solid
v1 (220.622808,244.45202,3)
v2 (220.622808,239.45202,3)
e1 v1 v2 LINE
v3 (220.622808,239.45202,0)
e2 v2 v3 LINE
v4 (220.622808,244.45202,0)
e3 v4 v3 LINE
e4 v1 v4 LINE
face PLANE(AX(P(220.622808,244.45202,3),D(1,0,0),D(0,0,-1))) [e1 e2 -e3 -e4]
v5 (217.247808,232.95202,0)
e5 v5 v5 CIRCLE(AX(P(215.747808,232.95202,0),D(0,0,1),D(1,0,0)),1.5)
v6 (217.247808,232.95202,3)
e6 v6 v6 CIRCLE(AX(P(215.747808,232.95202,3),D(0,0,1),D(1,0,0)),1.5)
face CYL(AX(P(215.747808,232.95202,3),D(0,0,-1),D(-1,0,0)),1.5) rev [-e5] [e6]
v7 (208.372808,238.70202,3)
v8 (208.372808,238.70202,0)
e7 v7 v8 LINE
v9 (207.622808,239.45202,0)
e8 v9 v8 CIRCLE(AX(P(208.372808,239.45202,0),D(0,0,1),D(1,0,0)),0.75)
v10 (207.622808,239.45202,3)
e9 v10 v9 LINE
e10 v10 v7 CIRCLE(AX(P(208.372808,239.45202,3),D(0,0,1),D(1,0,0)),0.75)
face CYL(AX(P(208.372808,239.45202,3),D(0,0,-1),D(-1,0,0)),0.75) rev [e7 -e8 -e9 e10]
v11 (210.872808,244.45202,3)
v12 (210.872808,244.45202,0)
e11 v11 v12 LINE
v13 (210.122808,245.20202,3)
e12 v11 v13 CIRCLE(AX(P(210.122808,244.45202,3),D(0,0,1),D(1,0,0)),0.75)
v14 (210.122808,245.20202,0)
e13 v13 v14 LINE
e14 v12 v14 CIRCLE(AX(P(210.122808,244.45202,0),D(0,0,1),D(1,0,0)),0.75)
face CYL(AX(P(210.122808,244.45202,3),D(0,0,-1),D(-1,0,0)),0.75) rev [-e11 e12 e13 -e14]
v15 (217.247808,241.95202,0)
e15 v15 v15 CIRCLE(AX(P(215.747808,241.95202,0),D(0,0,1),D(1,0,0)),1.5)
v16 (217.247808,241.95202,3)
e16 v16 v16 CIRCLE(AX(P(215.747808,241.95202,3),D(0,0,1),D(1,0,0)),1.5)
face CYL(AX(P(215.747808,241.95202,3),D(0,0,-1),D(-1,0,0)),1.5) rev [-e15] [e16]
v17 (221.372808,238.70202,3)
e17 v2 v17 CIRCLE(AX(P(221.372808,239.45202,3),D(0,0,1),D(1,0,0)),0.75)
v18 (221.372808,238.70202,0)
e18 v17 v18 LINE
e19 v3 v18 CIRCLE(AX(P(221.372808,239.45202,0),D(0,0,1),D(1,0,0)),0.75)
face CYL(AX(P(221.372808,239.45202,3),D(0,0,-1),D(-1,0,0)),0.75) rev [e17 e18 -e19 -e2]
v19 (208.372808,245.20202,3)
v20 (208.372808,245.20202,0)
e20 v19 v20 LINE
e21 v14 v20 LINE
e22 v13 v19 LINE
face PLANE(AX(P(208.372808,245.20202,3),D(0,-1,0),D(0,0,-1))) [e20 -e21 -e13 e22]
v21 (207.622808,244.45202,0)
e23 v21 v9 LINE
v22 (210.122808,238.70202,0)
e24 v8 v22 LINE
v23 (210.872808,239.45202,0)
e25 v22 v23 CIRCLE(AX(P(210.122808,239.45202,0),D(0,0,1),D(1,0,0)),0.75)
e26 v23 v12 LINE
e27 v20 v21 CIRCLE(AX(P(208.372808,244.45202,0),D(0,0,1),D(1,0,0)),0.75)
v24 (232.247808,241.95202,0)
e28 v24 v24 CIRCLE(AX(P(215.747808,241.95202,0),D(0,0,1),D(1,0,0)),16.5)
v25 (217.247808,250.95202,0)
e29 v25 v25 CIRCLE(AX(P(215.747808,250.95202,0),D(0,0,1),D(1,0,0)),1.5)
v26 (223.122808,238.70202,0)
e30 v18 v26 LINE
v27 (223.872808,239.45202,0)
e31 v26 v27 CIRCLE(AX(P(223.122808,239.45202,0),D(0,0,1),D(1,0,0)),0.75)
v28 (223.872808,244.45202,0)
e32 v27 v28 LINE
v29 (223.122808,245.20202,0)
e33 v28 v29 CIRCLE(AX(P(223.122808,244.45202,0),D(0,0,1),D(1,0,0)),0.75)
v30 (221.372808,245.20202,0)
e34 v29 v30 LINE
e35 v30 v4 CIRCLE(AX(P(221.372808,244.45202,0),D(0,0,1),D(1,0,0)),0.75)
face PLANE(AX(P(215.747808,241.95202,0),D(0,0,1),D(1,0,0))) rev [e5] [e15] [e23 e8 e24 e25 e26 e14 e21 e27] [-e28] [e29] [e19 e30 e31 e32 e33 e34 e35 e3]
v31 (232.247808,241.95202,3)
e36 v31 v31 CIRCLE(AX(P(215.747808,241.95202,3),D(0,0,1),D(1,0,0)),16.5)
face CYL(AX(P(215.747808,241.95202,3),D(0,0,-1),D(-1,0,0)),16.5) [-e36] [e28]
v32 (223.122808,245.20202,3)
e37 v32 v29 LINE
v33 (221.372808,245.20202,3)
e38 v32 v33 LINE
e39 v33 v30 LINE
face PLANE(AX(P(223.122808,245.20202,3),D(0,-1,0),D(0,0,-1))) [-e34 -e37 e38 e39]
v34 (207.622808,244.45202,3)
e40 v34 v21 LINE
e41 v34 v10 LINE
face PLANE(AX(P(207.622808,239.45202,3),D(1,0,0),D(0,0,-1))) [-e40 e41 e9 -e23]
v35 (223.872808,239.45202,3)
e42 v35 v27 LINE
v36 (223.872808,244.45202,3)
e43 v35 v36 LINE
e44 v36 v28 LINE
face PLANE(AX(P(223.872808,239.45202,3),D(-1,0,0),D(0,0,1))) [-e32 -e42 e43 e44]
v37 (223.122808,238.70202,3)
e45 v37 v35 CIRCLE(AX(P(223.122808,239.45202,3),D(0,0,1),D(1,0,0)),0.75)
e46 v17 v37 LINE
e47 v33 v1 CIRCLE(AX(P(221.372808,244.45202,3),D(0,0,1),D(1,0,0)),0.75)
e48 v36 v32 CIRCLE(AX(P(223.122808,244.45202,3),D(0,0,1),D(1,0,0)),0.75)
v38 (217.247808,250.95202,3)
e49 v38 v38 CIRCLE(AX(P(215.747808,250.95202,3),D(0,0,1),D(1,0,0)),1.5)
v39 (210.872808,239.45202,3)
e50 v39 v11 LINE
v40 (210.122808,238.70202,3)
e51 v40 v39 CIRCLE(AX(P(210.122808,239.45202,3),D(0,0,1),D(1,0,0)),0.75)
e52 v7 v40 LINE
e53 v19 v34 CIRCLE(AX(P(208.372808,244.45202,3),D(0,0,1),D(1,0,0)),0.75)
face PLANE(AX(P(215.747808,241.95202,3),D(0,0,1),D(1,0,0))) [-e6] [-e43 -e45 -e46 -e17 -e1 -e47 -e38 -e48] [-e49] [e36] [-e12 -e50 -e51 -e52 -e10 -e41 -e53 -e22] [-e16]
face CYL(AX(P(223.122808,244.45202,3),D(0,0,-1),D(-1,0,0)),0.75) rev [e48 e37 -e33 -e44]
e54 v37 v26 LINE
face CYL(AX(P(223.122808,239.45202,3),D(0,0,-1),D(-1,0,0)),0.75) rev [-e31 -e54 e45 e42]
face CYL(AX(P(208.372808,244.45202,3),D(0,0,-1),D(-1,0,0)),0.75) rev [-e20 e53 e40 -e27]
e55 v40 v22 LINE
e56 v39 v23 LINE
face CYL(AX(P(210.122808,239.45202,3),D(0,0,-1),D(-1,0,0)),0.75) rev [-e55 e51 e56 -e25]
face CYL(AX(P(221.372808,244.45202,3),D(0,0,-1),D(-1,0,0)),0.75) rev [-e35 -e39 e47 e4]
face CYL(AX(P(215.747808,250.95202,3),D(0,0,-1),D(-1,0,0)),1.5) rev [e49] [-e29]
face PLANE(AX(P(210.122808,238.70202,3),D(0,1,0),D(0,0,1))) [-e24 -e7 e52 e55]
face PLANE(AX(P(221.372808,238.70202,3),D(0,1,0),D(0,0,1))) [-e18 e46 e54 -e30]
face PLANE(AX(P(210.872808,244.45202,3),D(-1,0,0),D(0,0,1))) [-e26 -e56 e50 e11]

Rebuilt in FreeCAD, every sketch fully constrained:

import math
import FreeCAD as App
import Part
import Sketcher
from FreeCAD import Vector
Q = App.Units.Quantity

doc = App.newDocument("Part")
body = doc.addObject("PartDesign::Body", "Body")

sketch1 = body.newObject("Sketcher::SketchObject", "Sketch")
sketch1.AttachmentSupport = (doc.getObject("XY_Plane"), [""])
sketch1.MapMode = "FlatFace"
sketch1.addGeometry([
    Part.Circle(Vector(215.7, 242, 0), Vector(0, 0, 1), 16.5),
    Part.Circle(Vector(215.7, 233, 0), Vector(0, 0, 1), 1.5),
    Part.ArcOfCircle(Part.Circle(Vector(208.4, 244.5, 0), Vector(0, 0, 1), 0.8), math.radians(90), math.radians(180)),
    Part.LineSegment(Vector(208.4, 245.2, 0), Vector(210.1, 245.2, 0)),
    Part.ArcOfCircle(Part.Circle(Vector(210.1, 244.5, 0), Vector(0, 0, 1), 0.8), math.radians(0), math.radians(90)),
    Part.LineSegment(Vector(210.9, 244.5, 0), Vector(210.9, 239.5, 0)),
    Part.ArcOfCircle(Part.Circle(Vector(210.1, 239.5, 0), Vector(0, 0, 1), 0.8), math.radians(-90), math.radians(0)),
    Part.LineSegment(Vector(210.1, 238.7, 0), Vector(208.4, 238.7, 0)),
    Part.ArcOfCircle(Part.Circle(Vector(208.4, 239.5, 0), Vector(0, 0, 1), 0.8), math.radians(-180), math.radians(-90)),
    Part.LineSegment(Vector(207.6, 239.5, 0), Vector(207.6, 244.5, 0)),
    Part.Circle(Vector(215.7, 242, 0), Vector(0, 0, 1), 1.5),
    Part.LineSegment(Vector(221.4, 245.2, 0), Vector(223.1, 245.2, 0)),
    Part.ArcOfCircle(Part.Circle(Vector(223.1, 244.5, 0), Vector(0, 0, 1), 0.8), math.radians(0), math.radians(90)),
    Part.LineSegment(Vector(223.9, 244.5, 0), Vector(223.9, 239.5, 0)),
    Part.ArcOfCircle(Part.Circle(Vector(223.1, 239.5, 0), Vector(0, 0, 1), 0.8), math.radians(-90), math.radians(0)),
    Part.LineSegment(Vector(223.1, 238.7, 0), Vector(221.4, 238.7, 0)),
    Part.ArcOfCircle(Part.Circle(Vector(221.4, 239.5, 0), Vector(0, 0, 1), 0.8), math.radians(-180), math.radians(-90)),
    Part.LineSegment(Vector(220.6, 239.5, 0), Vector(220.6, 244.5, 0)),
    Part.ArcOfCircle(Part.Circle(Vector(221.4, 244.5, 0), Vector(0, 0, 1), 0.8), math.radians(90), math.radians(180)),
    Part.Circle(Vector(215.7, 251, 0), Vector(0, 0, 1), 1.5),
], False)
sketch1.addConstraint([
    Sketcher.Constraint("Tangent", 2, 1, 3, 1),
    Sketcher.Constraint("Tangent", 3, 2, 4, 2),
    Sketcher.Constraint("Tangent", 4, 1, 5, 1),
    Sketcher.Constraint("Tangent", 5, 2, 6, 2),
    Sketcher.Constraint("Tangent", 6, 1, 7, 1),
    Sketcher.Constraint("Tangent", 7, 2, 8, 2),
    Sketcher.Constraint("Tangent", 8, 1, 9, 1),
    Sketcher.Constraint("Tangent", 9, 2, 2, 2),
    Sketcher.Constraint("Tangent", 11, 2, 12, 2),
    Sketcher.Constraint("Tangent", 12, 1, 13, 1),
    Sketcher.Constraint("Tangent", 13, 2, 14, 2),
    Sketcher.Constraint("Tangent", 14, 1, 15, 1),
    Sketcher.Constraint("Tangent", 15, 2, 16, 2),
    Sketcher.Constraint("Tangent", 16, 1, 17, 1),
    Sketcher.Constraint("Tangent", 17, 2, 18, 2),
    Sketcher.Constraint("Tangent", 18, 1, 11, 1),
    Sketcher.Constraint("Horizontal", 3),
    Sketcher.Constraint("Vertical", 5),
    Sketcher.Constraint("Horizontal", 7),
    Sketcher.Constraint("Vertical", 9),
    Sketcher.Constraint("Horizontal", 11),
    Sketcher.Constraint("Vertical", 13),
    Sketcher.Constraint("Horizontal", 15),
    Sketcher.Constraint("Vertical", 17),
    Sketcher.Constraint("Coincident", 10, 3, 0, 3),
    Sketcher.Constraint("Equal", 2, 4),
    Sketcher.Constraint("Equal", 4, 6),
    Sketcher.Constraint("Equal", 6, 8),
    Sketcher.Constraint("Equal", 1, 10),
    Sketcher.Constraint("Equal", 8, 12),
    Sketcher.Constraint("Equal", 12, 14),
    Sketcher.Constraint("Equal", 14, 16),
    Sketcher.Constraint("Equal", 16, 18),
    Sketcher.Constraint("Equal", 10, 19),
    Sketcher.Constraint("Horizontal", 4, 3, 12, 3),
    Sketcher.Constraint("Horizontal", 8, 3, 14, 3),
    Sketcher.Constraint("Vertical", 0, 3, 1, 3),
    Sketcher.Constraint("Vertical", 10, 3, 19, 3),
    Sketcher.Constraint("Equal", 7, 11),
    Sketcher.Constraint("Diameter", 0, Q("33 mm")),
    Sketcher.Constraint("Diameter", 1, Q("3 mm")),
    Sketcher.Constraint("DistanceY", 5, 2, 5, 1, Q("5 mm")),
    Sketcher.Constraint("Radius", 2, Q("0.75 mm")),
    Sketcher.Constraint("DistanceY", 1, 3, 0, 3, Q("9 mm")),
    Sketcher.Constraint("DistanceX", 4, 3, 12, 3, Q("13 mm")),
    Sketcher.Constraint("DistanceY", 0, 3, 19, 3, Q("9 mm")),
    Sketcher.Constraint("DistanceX", 3, 1, 3, 2, Q("1.75 mm")),
    Sketcher.Constraint("DistanceY", 0, 3, 2, 3, Q("2.5 mm")),
    Sketcher.Constraint("DistanceX", 2, 3, 0, 3, Q("7.375 mm")),
    Sketcher.Constraint("DistanceY", -1, 1, 0, 3, Q("241.95202 mm")),
    Sketcher.Constraint("DistanceX", -1, 1, 0, 3, Q("215.747808 mm")),
])
pad1 = body.newObject("PartDesign::Pad", "Pad")
pad1.Profile = sketch1
pad1.Length = 3

doc.recompute()
